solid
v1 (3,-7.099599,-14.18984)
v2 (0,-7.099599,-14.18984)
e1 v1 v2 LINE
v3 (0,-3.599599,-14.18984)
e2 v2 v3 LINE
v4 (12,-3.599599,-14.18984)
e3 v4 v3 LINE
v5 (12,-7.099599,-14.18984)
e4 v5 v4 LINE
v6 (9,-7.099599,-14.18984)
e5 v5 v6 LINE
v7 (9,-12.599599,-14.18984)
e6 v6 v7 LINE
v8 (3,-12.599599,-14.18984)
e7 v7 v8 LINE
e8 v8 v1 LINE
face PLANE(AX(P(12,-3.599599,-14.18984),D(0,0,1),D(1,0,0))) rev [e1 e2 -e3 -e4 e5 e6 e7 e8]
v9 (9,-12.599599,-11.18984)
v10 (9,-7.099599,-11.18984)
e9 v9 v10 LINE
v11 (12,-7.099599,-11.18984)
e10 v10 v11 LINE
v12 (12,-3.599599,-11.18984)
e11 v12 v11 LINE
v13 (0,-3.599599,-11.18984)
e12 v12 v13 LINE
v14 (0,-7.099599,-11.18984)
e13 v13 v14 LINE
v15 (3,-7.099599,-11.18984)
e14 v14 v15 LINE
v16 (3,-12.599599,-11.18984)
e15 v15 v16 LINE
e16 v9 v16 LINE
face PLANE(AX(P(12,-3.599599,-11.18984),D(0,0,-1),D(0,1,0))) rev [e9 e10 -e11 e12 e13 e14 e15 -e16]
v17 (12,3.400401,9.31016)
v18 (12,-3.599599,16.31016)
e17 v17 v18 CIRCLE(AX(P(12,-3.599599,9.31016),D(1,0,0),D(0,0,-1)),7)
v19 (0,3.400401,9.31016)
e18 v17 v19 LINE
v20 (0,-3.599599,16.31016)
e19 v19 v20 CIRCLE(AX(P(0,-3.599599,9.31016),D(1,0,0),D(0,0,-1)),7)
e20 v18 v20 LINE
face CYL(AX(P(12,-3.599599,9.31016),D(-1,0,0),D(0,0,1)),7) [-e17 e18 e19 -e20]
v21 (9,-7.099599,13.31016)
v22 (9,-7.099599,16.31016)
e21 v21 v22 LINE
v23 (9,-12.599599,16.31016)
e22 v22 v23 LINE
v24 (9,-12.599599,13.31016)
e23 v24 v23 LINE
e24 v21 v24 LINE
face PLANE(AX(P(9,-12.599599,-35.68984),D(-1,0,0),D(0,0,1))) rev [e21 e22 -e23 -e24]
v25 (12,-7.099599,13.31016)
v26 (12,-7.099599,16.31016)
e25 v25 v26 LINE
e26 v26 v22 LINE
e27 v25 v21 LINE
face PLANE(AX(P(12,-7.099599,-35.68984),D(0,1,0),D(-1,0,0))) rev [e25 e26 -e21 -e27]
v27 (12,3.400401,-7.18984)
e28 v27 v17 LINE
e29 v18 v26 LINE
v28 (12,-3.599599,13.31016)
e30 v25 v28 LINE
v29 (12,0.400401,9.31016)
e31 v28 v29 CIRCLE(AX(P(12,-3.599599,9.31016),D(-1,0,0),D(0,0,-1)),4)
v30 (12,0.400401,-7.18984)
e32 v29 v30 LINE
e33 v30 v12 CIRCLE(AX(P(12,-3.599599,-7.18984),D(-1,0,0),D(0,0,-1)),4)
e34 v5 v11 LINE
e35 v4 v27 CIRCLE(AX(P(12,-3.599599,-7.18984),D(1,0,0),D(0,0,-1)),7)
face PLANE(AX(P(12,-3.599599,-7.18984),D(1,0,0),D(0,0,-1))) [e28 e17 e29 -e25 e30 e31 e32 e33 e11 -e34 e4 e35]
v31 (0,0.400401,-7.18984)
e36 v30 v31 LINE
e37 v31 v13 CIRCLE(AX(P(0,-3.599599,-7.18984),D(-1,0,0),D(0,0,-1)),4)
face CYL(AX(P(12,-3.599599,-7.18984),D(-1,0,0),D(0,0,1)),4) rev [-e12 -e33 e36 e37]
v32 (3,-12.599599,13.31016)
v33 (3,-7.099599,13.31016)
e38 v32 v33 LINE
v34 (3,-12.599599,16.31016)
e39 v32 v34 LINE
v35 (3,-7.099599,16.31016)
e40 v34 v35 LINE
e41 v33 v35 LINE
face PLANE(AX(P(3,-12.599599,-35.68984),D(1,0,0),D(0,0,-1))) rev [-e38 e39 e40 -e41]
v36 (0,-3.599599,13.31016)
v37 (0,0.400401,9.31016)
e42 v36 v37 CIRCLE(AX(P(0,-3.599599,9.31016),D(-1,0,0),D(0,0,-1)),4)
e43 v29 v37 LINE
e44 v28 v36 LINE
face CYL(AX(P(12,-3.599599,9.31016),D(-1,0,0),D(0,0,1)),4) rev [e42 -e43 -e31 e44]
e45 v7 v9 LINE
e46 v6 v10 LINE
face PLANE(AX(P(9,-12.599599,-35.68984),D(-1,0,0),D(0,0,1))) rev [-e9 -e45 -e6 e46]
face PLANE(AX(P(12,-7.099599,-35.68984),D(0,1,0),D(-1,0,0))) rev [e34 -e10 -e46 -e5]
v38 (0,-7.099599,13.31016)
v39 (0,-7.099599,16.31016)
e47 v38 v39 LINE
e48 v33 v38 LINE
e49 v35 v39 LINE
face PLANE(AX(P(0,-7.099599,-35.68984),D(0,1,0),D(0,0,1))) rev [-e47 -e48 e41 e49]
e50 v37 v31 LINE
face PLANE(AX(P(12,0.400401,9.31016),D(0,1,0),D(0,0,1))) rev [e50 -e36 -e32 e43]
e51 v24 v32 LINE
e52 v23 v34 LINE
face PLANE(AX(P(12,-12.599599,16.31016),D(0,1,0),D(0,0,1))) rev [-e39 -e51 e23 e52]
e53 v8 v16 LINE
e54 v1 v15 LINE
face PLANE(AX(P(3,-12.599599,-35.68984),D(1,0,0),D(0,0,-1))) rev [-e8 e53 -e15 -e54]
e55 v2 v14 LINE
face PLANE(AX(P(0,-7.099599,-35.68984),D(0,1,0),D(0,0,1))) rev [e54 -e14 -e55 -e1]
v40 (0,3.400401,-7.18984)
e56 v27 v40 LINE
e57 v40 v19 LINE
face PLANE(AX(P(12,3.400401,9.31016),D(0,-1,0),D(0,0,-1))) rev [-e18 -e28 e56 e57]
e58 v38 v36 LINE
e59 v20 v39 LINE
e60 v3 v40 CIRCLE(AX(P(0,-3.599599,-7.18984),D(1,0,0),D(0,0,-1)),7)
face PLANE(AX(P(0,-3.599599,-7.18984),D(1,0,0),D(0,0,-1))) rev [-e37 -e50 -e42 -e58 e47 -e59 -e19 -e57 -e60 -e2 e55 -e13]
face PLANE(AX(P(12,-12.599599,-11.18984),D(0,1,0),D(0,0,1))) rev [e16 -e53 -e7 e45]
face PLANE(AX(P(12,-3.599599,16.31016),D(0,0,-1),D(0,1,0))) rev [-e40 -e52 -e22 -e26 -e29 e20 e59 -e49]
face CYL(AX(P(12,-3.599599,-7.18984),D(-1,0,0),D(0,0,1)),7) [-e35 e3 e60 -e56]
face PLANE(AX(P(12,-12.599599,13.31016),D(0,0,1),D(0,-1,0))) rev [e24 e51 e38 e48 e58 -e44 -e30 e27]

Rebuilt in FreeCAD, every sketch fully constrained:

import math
import FreeCAD as App
import Part
import Sketcher

V = App.Vector

doc = App.newDocument("Part")
body = doc.addObject("PartDesign::Body", "Body")

# Sketch on YZ plane
sketch1 = doc.addObject("Sketcher::SketchObject", "Sketch")
body.addObject(sketch1)
sketch1.AttachmentSupport = (doc.YZ_Plane, [""])
sketch1.MapMode = "FlatFace"
sketch1.addGeometry(Part.LineSegment(V(-12.6, 13.3, 0), V(-3.6, 13.3, 0)), False)
sketch1.addGeometry(Part.ArcOfCircle(Part.Circle(V(-3.6, 9.3, 0), V(0, 0, 1), 4), math.radians(0), math.radians(90)), False)
sketch1.addGeometry(Part.LineSegment(V(0.4, 9.3, 0), V(0.4, -7.2, 0)), False)
sketch1.addGeometry(Part.ArcOfCircle(Part.Circle(V(-3.6, -7.2, 0), V(0, 0, 1), 4), math.radians(-90), math.radians(0)), False)
sketch1.addGeometry(Part.LineSegment(V(-3.6, -11.2, 0), V(-12.6, -11.2, 0)), False)
sketch1.addGeometry(Part.LineSegment(V(-12.6, -11.2, 0), V(-12.6, -14.2, 0)), False)
sketch1.addGeometry(Part.LineSegment(V(-12.6, -14.2, 0), V(-3.6, -14.2, 0)), False)
sketch1.addGeometry(Part.ArcOfCircle(Part.Circle(V(-3.6, -7.2, 0), V(0, 0, 1), 7), math.radians(-90), math.radians(0)), False)
sketch1.addGeometry(Part.LineSegment(V(3.4, -7.2, 0), V(3.4, 9.3, 0)), False)
sketch1.addGeometry(Part.ArcOfCircle(Part.Circle(V(-3.6, 9.3, 0), V(0, 0, 1), 7), math.radians(0), math.radians(90)), False)
sketch1.addGeometry(Part.LineSegment(V(-3.6, 16.3, 0), V(-12.6, 16.3, 0)), False)
sketch1.addGeometry(Part.LineSegment(V(-12.6, 16.3, 0), V(-12.6, 13.3, 0)), False)
sketch1.addConstraint(Sketcher.Constraint("Tangent", 0, 2, 1, 2))
sketch1.addConstraint(Sketcher.Constraint("Tangent", 1, 1, 2, 1))
sketch1.addConstraint(Sketcher.Constraint("Tangent", 2, 2, 3, 2))
sketch1.addConstraint(Sketcher.Constraint("Tangent", 3, 1, 4, 1))
sketch1.addConstraint(Sketcher.Constraint("Coincident", 4, 2, 5, 1))
sketch1.addConstraint(Sketcher.Constraint("Coincident", 5, 2, 6, 1))
sketch1.addConstraint(Sketcher.Constraint("Tangent", 6, 2, 7, 1))
sketch1.addConstraint(Sketcher.Constraint("Tangent", 7, 2, 8, 1))
sketch1.addConstraint(Sketcher.Constraint("Tangent", 8, 2, 9, 1))
sketch1.addConstraint(Sketcher.Constraint("Tangent", 9, 2, 10, 1))
sketch1.addConstraint(Sketcher.Constraint("Coincident", 10, 2, 11, 1))
sketch1.addConstraint(Sketcher.Constraint("Coincident", 11, 2, 0, 1))
sketch1.addConstraint(Sketcher.Constraint("Horizontal", 0))
sketch1.addConstraint(Sketcher.Constraint("Vertical", 2))
sketch1.addConstraint(Sketcher.Constraint("Horizontal", 4))
sketch1.addConstraint(Sketcher.Constraint("Vertical", 5))
sketch1.addConstraint(Sketcher.Constraint("Horizontal", 6))
sketch1.addConstraint(Sketcher.Constraint("Vertical", 8))
sketch1.addConstraint(Sketcher.Constraint("Horizontal", 10))
sketch1.addConstraint(Sketcher.Constraint("Vertical", 11))
sketch1.addConstraint(Sketcher.Constraint("Coincident", 7, 3, 3, 3))
sketch1.addConstraint(Sketcher.Constraint("Coincident", 9, 3, 1, 3))
sketch1.addConstraint(Sketcher.Constraint("Equal", 1, 3))
sketch1.addConstraint(Sketcher.Constraint("Vertical", 5, 2, 10, 2))
sketch1.addConstraint(Sketcher.Constraint("Radius", 1, 4.0))
sketch1.addConstraint(Sketcher.Constraint("Radius", 7, 7.0))
sketch1.addConstraint(Sketcher.Constraint("DistanceX", 0, 1, 0, 2, 9.0))
sketch1.addConstraint(Sketcher.Constraint("DistanceY", 2, 2, 2, 1, 16.5))
sketch1.addConstraint(Sketcher.Constraint("DistanceX", 1, 3, -1, 1, 3.599599))
sketch1.addConstraint(Sketcher.Constraint("DistanceY", -1, 1, 1, 3, 9.31016))
pad1 = doc.addObject("PartDesign::Pad", "Pad")
body.addObject(pad1)
pad1.Profile = sketch1
pad1.Length = 12

# Sketch on XY plane
sketch2 = doc.addObject("Sketcher::SketchObject", "Sketch001")
body.addObject(sketch2)
sketch2.AttachmentSupport = (doc.XY_Plane, [""])
sketch2.MapMode = "FlatFace"
sketch2.AttachmentOffset = App.Placement(V(0, 0, 16.31016), App.Rotation())
sketch2.addGeometry(Part.LineSegment(V(0, -7.1, 0), V(0, -12.6, 0)), False)
sketch2.addGeometry(Part.LineSegment(V(0, -12.6, 0), V(3, -12.6, 0)), False)
sketch2.addGeometry(Part.LineSegment(V(3, -12.6, 0), V(3, -7.1, 0)), False)
sketch2.addGeometry(Part.LineSegment(V(3, -7.1, 0), V(0, -7.1, 0)), False)
sketch2.addGeometry(Part.LineSegment(V(9, -7.1, 0), V(9, -12.6, 0)), False)
sketch2.addGeometry(Part.LineSegment(V(9, -12.6, 0), V(12, -12.6, 0)), False)
sketch2.addGeometry(Part.LineSegment(V(12, -12.6, 0), V(12, -7.1, 0)), False)
sketch2.addGeometry(Part.LineSegment(V(12, -7.1, 0), V(9, -7.1, 0)), False)
sketch2.addConstraint(Sketcher.Constraint("Coincident", 0, 2, 1, 1))
sketch2.addConstraint(Sketcher.Constraint("Coincident", 1, 2, 2, 1))
sketch2.addConstraint(Sketcher.Constraint("Coincident", 2, 2, 3, 1))
sketch2.addConstraint(Sketcher.Constraint("Coincident", 3, 2, 0, 1))
sketch2.addConstraint(Sketcher.Constraint("Coincident", 4, 2, 5, 1))
sketch2.addConstraint(Sketcher.Constraint("Coincident", 5, 2, 6, 1))
sketch2.addConstraint(Sketcher.Constraint("Coincident", 6, 2, 7, 1))
sketch2.addConstraint(Sketcher.Constraint("Coincident", 7, 2, 4, 1))
sketch2.addConstraint(Sketcher.Constraint("Vertical", 0))
sketch2.addConstraint(Sketcher.Constraint("Horizontal", 1))
sketch2.addConstraint(Sketcher.Constraint("Vertical", 2))
sketch2.addConstraint(Sketcher.Constraint("Horizontal", 3))
sketch2.addConstraint(Sketcher.Constraint("Vertical", 4))
sketch2.addConstraint(Sketcher.Constraint("Horizontal", 5))
sketch2.addConstraint(Sketcher.Constraint("Vertical", 6))
sketch2.addConstraint(Sketcher.Constraint("Horizontal", 7))
sketch2.addConstraint(Sketcher.Constraint("PointOnObject", 0, 2, -2))
sketch2.addConstraint(Sketcher.Constraint("Horizontal", 1, 2, 4, 2))
sketch2.addConstraint(Sketcher.Constraint("Horizontal", 3, 2, 6, 2))
sketch2.addConstraint(Sketcher.Constraint("Equal", 3, 5))
sketch2.addConstraint(Sketcher.Constraint("DistanceX", 1, 1, 1, 2, 3.0))
sketch2.addConstraint(Sketcher.Constraint("DistanceY", 0, 2, 0, 1, 5.5))
sketch2.addConstraint(Sketcher.Constraint("DistanceX", -1, 1, 4, 2, 9.0))
sketch2.addConstraint(Sketcher.Constraint("DistanceY", 0, 2, -1, 1, 12.599599))
pocket1 = doc.addObject("PartDesign::Pocket", "Pocket")
body.addObject(pocket1)
pocket1.Profile = sketch2
pocket1.Length = 52

doc.recompute()
